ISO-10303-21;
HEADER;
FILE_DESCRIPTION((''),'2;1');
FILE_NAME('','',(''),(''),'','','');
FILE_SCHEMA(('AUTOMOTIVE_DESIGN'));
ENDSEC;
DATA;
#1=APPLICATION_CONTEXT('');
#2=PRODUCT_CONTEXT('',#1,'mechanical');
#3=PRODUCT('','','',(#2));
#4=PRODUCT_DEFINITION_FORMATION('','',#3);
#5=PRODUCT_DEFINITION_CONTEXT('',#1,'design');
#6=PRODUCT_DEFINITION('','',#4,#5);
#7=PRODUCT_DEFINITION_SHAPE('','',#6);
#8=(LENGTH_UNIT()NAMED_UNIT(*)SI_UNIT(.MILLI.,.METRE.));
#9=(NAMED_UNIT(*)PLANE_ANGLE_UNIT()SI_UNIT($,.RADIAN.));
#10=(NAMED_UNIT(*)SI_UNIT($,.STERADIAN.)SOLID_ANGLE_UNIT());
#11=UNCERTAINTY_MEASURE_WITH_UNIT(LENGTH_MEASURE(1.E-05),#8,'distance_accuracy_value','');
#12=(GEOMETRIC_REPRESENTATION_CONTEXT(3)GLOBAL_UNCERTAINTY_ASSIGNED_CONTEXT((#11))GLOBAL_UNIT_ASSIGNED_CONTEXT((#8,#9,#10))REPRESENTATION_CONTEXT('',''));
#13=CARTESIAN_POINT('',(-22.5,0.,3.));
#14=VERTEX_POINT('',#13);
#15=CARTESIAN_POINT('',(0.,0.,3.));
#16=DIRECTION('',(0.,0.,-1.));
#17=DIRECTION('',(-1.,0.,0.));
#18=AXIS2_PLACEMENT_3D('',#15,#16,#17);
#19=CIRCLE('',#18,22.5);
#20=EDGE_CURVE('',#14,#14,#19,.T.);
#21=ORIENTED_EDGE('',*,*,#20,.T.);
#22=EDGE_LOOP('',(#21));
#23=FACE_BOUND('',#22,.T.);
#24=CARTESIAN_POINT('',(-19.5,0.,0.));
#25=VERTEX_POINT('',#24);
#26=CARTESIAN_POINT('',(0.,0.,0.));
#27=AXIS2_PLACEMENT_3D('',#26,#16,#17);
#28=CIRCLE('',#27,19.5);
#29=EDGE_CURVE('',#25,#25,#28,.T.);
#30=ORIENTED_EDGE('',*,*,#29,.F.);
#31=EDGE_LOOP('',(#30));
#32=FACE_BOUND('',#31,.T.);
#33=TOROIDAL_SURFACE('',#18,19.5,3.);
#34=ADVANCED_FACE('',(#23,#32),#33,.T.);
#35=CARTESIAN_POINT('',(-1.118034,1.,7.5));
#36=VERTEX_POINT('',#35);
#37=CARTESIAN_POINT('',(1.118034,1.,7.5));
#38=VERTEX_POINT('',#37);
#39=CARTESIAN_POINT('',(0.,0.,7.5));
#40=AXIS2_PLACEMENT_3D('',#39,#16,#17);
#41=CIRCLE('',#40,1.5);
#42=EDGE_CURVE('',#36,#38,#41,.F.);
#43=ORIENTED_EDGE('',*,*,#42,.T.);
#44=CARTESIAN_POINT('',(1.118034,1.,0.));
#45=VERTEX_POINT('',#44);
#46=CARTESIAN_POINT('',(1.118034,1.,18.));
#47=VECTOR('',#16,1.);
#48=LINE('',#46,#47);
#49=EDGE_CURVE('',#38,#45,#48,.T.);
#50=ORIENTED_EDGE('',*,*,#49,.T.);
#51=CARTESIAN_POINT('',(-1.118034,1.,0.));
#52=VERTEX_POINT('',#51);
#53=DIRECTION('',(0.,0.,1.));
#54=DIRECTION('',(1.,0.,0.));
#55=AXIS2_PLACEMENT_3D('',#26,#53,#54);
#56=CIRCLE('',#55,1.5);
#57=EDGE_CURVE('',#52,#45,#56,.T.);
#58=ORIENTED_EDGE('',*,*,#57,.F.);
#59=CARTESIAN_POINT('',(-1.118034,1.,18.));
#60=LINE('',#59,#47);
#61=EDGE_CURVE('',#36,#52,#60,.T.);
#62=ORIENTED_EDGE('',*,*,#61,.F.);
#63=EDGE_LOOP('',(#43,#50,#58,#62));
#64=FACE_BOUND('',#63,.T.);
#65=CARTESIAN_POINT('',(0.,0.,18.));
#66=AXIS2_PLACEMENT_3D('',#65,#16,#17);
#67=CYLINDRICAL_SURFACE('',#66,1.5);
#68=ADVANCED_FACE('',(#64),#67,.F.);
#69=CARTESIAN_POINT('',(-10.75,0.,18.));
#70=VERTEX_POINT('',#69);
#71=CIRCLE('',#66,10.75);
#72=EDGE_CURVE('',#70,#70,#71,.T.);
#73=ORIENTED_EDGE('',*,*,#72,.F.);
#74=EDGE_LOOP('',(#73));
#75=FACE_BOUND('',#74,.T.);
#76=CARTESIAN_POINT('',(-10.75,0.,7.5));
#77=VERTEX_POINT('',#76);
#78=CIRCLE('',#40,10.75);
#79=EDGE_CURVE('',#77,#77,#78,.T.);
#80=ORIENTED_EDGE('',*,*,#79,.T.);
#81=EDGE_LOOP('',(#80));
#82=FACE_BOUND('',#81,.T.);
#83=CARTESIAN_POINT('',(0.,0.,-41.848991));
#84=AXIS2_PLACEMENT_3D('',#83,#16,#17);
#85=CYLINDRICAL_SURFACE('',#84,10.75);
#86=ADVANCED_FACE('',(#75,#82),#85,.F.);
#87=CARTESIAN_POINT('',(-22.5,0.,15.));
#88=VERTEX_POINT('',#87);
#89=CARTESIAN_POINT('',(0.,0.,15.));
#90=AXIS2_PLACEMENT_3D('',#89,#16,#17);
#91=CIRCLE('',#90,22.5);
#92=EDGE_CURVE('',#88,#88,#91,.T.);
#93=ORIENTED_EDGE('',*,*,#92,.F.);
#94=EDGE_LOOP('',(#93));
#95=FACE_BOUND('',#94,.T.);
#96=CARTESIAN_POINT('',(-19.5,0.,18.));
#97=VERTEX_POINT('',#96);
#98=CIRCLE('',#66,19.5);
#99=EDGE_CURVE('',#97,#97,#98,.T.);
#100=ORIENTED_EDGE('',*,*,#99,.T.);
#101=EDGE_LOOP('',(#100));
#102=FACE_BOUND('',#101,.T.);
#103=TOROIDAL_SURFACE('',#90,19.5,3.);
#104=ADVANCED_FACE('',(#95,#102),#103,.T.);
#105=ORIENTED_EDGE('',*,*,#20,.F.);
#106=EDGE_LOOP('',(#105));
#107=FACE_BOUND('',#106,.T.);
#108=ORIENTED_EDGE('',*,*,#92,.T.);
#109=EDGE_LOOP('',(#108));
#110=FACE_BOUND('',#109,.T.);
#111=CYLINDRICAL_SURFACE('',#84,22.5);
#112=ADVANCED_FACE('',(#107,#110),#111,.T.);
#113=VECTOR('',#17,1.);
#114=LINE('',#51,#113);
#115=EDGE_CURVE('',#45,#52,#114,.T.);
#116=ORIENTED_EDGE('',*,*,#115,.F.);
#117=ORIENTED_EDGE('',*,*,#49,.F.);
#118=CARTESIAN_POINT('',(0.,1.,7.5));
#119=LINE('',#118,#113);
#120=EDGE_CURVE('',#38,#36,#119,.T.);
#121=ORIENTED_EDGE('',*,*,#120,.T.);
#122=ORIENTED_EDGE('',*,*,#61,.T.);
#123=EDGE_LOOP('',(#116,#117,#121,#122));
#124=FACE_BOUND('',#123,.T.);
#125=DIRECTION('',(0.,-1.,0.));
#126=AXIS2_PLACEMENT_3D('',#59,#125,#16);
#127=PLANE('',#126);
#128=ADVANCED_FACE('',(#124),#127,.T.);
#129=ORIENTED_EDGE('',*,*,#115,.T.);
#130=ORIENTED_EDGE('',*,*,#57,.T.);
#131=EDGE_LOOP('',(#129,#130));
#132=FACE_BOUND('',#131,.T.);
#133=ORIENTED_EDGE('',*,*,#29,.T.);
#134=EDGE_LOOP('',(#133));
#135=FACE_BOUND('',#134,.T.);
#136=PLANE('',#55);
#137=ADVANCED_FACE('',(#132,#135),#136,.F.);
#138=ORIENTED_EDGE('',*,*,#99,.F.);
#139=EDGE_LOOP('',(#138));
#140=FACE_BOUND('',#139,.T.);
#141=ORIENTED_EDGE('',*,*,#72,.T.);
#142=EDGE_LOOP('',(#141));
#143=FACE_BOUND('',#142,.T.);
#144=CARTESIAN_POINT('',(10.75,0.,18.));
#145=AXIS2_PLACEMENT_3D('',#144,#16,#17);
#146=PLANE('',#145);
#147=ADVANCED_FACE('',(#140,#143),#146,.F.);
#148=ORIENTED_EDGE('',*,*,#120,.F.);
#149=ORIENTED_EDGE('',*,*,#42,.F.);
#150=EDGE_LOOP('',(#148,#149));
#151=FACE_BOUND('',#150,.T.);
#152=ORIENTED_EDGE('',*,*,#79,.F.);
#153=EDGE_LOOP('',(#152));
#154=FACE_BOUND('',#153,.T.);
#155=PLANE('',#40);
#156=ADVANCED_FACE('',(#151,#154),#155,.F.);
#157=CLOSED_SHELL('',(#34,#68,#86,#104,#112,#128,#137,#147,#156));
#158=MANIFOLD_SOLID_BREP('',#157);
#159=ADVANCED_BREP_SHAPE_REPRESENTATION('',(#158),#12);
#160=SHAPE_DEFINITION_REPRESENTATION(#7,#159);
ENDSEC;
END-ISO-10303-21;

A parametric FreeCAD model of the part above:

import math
import FreeCAD as App
import Part
import Sketcher
from FreeCAD import Vector

doc = App.newDocument("Part")
body = doc.addObject("PartDesign::Body", "Body")

sketch1 = body.newObject("Sketcher::SketchObject", "Sketch")
sketch1.AttachmentSupport = (doc.getObject("XZ_Plane"), [""])
sketch1.MapMode = "FlatFace"
sketch1.addGeometry([
    Part.LineSegment(Vector(19.5, 0, 0), Vector(0, 0, 0)),
    Part.LineSegment(Vector(0, 0, 0), Vector(0, 7.5, 0)),
    Part.LineSegment(Vector(0, 7.5, 0), Vector(10.75, 7.5, 0)),
    Part.LineSegment(Vector(10.75, 7.5, 0), Vector(10.75, 18, 0)),
    Part.LineSegment(Vector(10.75, 18, 0), Vector(19.5, 18, 0)),
    Part.ArcOfCircle(Part.Circle(Vector(19.5, 15, 0), Vector(0, 0, 1), 3), math.radians(0), math.radians(90)),
    Part.LineSegment(Vector(22.5, 15, 0), Vector(22.5, 3, 0)),
    Part.ArcOfCircle(Part.Circle(Vector(19.5, 3, 0), Vector(0, 0, 1), 3), math.radians(-90), math.radians(0)),
], False)
sketch1.addConstraint([
    Sketcher.Constraint("Coincident", 0, 2, 1, 1),
    Sketcher.Constraint("Coincident", 1, 2, 2, 1),
    Sketcher.Constraint("Coincident", 2, 2, 3, 1),
    Sketcher.Constraint("Coincident", 3, 2, 4, 1),
    Sketcher.Constraint("Tangent", 4, 2, 5, 2),
    Sketcher.Constraint("Tangent", 5, 1, 6, 1),
    Sketcher.Constraint("Tangent", 6, 2, 7, 2),
    Sketcher.Constraint("Tangent", 7, 1, 0, 1),
    Sketcher.Constraint("Horizontal", 0),
    Sketcher.Constraint("Vertical", 1),
    Sketcher.Constraint("Horizontal", 2),
    Sketcher.Constraint("Vertical", 3),
    Sketcher.Constraint("Horizontal", 4),
    Sketcher.Constraint("Vertical", 6),
    Sketcher.Constraint("Coincident", 0, 2, -1, 1),
    Sketcher.Constraint("Equal", 5, 7),
    Sketcher.Constraint("Radius", 5, 3.0),
    Sketcher.Constraint("DistanceY", 6, 2, 6, 1, 12.0),
    Sketcher.Constraint("DistanceX", 0, 2, 0, 1, 19.5),
    Sketcher.Constraint("DistanceY", 1, 1, 1, 2, 7.5),
    Sketcher.Constraint("DistanceX", 2, 1, 2, 2, 10.75),
])
revolution = body.newObject("PartDesign::Revolution", "Revolution")
revolution.Profile = sketch1
revolution.ReferenceAxis = (sketch1, ["V_Axis"])
revolution.Angle = 360

sketch2 = body.newObject("Sketcher::SketchObject", "Sketch001")
sketch2.AttachmentSupport = (doc.getObject("XY_Plane"), [""])
sketch2.MapMode = "FlatFace"
sketch2.addGeometry([
    Part.LineSegment(Vector(1.118034, 1, 0), Vector(-1.118034, 1, 0)),
    Part.ArcOfCircle(Part.Circle(Vector(0, 0, 0), Vector(0, 0, 1), 1.5), math.radians(138.189685), math.radians(401.810315)),
], False)
sketch2.addConstraint([
    Sketcher.Constraint("Coincident", 0, 1, 1, 2),
    Sketcher.Constraint("Coincident", 1, 1, 0, 2),
    Sketcher.Constraint("Horizontal", 0),
    Sketcher.Constraint("Coincident", 1, 3, -1, 1),
    Sketcher.Constraint("Radius", 1, 1.5),
    Sketcher.Constraint("DistanceY", -1, 1, 0, 1, 1.0),
])
pocket1 = body.newObject("PartDesign::Pocket", "Pocket")
pocket1.Profile = sketch2
pocket1.Type = "ThroughAll"
pocket1.Reversed = True

doc.recompute()
